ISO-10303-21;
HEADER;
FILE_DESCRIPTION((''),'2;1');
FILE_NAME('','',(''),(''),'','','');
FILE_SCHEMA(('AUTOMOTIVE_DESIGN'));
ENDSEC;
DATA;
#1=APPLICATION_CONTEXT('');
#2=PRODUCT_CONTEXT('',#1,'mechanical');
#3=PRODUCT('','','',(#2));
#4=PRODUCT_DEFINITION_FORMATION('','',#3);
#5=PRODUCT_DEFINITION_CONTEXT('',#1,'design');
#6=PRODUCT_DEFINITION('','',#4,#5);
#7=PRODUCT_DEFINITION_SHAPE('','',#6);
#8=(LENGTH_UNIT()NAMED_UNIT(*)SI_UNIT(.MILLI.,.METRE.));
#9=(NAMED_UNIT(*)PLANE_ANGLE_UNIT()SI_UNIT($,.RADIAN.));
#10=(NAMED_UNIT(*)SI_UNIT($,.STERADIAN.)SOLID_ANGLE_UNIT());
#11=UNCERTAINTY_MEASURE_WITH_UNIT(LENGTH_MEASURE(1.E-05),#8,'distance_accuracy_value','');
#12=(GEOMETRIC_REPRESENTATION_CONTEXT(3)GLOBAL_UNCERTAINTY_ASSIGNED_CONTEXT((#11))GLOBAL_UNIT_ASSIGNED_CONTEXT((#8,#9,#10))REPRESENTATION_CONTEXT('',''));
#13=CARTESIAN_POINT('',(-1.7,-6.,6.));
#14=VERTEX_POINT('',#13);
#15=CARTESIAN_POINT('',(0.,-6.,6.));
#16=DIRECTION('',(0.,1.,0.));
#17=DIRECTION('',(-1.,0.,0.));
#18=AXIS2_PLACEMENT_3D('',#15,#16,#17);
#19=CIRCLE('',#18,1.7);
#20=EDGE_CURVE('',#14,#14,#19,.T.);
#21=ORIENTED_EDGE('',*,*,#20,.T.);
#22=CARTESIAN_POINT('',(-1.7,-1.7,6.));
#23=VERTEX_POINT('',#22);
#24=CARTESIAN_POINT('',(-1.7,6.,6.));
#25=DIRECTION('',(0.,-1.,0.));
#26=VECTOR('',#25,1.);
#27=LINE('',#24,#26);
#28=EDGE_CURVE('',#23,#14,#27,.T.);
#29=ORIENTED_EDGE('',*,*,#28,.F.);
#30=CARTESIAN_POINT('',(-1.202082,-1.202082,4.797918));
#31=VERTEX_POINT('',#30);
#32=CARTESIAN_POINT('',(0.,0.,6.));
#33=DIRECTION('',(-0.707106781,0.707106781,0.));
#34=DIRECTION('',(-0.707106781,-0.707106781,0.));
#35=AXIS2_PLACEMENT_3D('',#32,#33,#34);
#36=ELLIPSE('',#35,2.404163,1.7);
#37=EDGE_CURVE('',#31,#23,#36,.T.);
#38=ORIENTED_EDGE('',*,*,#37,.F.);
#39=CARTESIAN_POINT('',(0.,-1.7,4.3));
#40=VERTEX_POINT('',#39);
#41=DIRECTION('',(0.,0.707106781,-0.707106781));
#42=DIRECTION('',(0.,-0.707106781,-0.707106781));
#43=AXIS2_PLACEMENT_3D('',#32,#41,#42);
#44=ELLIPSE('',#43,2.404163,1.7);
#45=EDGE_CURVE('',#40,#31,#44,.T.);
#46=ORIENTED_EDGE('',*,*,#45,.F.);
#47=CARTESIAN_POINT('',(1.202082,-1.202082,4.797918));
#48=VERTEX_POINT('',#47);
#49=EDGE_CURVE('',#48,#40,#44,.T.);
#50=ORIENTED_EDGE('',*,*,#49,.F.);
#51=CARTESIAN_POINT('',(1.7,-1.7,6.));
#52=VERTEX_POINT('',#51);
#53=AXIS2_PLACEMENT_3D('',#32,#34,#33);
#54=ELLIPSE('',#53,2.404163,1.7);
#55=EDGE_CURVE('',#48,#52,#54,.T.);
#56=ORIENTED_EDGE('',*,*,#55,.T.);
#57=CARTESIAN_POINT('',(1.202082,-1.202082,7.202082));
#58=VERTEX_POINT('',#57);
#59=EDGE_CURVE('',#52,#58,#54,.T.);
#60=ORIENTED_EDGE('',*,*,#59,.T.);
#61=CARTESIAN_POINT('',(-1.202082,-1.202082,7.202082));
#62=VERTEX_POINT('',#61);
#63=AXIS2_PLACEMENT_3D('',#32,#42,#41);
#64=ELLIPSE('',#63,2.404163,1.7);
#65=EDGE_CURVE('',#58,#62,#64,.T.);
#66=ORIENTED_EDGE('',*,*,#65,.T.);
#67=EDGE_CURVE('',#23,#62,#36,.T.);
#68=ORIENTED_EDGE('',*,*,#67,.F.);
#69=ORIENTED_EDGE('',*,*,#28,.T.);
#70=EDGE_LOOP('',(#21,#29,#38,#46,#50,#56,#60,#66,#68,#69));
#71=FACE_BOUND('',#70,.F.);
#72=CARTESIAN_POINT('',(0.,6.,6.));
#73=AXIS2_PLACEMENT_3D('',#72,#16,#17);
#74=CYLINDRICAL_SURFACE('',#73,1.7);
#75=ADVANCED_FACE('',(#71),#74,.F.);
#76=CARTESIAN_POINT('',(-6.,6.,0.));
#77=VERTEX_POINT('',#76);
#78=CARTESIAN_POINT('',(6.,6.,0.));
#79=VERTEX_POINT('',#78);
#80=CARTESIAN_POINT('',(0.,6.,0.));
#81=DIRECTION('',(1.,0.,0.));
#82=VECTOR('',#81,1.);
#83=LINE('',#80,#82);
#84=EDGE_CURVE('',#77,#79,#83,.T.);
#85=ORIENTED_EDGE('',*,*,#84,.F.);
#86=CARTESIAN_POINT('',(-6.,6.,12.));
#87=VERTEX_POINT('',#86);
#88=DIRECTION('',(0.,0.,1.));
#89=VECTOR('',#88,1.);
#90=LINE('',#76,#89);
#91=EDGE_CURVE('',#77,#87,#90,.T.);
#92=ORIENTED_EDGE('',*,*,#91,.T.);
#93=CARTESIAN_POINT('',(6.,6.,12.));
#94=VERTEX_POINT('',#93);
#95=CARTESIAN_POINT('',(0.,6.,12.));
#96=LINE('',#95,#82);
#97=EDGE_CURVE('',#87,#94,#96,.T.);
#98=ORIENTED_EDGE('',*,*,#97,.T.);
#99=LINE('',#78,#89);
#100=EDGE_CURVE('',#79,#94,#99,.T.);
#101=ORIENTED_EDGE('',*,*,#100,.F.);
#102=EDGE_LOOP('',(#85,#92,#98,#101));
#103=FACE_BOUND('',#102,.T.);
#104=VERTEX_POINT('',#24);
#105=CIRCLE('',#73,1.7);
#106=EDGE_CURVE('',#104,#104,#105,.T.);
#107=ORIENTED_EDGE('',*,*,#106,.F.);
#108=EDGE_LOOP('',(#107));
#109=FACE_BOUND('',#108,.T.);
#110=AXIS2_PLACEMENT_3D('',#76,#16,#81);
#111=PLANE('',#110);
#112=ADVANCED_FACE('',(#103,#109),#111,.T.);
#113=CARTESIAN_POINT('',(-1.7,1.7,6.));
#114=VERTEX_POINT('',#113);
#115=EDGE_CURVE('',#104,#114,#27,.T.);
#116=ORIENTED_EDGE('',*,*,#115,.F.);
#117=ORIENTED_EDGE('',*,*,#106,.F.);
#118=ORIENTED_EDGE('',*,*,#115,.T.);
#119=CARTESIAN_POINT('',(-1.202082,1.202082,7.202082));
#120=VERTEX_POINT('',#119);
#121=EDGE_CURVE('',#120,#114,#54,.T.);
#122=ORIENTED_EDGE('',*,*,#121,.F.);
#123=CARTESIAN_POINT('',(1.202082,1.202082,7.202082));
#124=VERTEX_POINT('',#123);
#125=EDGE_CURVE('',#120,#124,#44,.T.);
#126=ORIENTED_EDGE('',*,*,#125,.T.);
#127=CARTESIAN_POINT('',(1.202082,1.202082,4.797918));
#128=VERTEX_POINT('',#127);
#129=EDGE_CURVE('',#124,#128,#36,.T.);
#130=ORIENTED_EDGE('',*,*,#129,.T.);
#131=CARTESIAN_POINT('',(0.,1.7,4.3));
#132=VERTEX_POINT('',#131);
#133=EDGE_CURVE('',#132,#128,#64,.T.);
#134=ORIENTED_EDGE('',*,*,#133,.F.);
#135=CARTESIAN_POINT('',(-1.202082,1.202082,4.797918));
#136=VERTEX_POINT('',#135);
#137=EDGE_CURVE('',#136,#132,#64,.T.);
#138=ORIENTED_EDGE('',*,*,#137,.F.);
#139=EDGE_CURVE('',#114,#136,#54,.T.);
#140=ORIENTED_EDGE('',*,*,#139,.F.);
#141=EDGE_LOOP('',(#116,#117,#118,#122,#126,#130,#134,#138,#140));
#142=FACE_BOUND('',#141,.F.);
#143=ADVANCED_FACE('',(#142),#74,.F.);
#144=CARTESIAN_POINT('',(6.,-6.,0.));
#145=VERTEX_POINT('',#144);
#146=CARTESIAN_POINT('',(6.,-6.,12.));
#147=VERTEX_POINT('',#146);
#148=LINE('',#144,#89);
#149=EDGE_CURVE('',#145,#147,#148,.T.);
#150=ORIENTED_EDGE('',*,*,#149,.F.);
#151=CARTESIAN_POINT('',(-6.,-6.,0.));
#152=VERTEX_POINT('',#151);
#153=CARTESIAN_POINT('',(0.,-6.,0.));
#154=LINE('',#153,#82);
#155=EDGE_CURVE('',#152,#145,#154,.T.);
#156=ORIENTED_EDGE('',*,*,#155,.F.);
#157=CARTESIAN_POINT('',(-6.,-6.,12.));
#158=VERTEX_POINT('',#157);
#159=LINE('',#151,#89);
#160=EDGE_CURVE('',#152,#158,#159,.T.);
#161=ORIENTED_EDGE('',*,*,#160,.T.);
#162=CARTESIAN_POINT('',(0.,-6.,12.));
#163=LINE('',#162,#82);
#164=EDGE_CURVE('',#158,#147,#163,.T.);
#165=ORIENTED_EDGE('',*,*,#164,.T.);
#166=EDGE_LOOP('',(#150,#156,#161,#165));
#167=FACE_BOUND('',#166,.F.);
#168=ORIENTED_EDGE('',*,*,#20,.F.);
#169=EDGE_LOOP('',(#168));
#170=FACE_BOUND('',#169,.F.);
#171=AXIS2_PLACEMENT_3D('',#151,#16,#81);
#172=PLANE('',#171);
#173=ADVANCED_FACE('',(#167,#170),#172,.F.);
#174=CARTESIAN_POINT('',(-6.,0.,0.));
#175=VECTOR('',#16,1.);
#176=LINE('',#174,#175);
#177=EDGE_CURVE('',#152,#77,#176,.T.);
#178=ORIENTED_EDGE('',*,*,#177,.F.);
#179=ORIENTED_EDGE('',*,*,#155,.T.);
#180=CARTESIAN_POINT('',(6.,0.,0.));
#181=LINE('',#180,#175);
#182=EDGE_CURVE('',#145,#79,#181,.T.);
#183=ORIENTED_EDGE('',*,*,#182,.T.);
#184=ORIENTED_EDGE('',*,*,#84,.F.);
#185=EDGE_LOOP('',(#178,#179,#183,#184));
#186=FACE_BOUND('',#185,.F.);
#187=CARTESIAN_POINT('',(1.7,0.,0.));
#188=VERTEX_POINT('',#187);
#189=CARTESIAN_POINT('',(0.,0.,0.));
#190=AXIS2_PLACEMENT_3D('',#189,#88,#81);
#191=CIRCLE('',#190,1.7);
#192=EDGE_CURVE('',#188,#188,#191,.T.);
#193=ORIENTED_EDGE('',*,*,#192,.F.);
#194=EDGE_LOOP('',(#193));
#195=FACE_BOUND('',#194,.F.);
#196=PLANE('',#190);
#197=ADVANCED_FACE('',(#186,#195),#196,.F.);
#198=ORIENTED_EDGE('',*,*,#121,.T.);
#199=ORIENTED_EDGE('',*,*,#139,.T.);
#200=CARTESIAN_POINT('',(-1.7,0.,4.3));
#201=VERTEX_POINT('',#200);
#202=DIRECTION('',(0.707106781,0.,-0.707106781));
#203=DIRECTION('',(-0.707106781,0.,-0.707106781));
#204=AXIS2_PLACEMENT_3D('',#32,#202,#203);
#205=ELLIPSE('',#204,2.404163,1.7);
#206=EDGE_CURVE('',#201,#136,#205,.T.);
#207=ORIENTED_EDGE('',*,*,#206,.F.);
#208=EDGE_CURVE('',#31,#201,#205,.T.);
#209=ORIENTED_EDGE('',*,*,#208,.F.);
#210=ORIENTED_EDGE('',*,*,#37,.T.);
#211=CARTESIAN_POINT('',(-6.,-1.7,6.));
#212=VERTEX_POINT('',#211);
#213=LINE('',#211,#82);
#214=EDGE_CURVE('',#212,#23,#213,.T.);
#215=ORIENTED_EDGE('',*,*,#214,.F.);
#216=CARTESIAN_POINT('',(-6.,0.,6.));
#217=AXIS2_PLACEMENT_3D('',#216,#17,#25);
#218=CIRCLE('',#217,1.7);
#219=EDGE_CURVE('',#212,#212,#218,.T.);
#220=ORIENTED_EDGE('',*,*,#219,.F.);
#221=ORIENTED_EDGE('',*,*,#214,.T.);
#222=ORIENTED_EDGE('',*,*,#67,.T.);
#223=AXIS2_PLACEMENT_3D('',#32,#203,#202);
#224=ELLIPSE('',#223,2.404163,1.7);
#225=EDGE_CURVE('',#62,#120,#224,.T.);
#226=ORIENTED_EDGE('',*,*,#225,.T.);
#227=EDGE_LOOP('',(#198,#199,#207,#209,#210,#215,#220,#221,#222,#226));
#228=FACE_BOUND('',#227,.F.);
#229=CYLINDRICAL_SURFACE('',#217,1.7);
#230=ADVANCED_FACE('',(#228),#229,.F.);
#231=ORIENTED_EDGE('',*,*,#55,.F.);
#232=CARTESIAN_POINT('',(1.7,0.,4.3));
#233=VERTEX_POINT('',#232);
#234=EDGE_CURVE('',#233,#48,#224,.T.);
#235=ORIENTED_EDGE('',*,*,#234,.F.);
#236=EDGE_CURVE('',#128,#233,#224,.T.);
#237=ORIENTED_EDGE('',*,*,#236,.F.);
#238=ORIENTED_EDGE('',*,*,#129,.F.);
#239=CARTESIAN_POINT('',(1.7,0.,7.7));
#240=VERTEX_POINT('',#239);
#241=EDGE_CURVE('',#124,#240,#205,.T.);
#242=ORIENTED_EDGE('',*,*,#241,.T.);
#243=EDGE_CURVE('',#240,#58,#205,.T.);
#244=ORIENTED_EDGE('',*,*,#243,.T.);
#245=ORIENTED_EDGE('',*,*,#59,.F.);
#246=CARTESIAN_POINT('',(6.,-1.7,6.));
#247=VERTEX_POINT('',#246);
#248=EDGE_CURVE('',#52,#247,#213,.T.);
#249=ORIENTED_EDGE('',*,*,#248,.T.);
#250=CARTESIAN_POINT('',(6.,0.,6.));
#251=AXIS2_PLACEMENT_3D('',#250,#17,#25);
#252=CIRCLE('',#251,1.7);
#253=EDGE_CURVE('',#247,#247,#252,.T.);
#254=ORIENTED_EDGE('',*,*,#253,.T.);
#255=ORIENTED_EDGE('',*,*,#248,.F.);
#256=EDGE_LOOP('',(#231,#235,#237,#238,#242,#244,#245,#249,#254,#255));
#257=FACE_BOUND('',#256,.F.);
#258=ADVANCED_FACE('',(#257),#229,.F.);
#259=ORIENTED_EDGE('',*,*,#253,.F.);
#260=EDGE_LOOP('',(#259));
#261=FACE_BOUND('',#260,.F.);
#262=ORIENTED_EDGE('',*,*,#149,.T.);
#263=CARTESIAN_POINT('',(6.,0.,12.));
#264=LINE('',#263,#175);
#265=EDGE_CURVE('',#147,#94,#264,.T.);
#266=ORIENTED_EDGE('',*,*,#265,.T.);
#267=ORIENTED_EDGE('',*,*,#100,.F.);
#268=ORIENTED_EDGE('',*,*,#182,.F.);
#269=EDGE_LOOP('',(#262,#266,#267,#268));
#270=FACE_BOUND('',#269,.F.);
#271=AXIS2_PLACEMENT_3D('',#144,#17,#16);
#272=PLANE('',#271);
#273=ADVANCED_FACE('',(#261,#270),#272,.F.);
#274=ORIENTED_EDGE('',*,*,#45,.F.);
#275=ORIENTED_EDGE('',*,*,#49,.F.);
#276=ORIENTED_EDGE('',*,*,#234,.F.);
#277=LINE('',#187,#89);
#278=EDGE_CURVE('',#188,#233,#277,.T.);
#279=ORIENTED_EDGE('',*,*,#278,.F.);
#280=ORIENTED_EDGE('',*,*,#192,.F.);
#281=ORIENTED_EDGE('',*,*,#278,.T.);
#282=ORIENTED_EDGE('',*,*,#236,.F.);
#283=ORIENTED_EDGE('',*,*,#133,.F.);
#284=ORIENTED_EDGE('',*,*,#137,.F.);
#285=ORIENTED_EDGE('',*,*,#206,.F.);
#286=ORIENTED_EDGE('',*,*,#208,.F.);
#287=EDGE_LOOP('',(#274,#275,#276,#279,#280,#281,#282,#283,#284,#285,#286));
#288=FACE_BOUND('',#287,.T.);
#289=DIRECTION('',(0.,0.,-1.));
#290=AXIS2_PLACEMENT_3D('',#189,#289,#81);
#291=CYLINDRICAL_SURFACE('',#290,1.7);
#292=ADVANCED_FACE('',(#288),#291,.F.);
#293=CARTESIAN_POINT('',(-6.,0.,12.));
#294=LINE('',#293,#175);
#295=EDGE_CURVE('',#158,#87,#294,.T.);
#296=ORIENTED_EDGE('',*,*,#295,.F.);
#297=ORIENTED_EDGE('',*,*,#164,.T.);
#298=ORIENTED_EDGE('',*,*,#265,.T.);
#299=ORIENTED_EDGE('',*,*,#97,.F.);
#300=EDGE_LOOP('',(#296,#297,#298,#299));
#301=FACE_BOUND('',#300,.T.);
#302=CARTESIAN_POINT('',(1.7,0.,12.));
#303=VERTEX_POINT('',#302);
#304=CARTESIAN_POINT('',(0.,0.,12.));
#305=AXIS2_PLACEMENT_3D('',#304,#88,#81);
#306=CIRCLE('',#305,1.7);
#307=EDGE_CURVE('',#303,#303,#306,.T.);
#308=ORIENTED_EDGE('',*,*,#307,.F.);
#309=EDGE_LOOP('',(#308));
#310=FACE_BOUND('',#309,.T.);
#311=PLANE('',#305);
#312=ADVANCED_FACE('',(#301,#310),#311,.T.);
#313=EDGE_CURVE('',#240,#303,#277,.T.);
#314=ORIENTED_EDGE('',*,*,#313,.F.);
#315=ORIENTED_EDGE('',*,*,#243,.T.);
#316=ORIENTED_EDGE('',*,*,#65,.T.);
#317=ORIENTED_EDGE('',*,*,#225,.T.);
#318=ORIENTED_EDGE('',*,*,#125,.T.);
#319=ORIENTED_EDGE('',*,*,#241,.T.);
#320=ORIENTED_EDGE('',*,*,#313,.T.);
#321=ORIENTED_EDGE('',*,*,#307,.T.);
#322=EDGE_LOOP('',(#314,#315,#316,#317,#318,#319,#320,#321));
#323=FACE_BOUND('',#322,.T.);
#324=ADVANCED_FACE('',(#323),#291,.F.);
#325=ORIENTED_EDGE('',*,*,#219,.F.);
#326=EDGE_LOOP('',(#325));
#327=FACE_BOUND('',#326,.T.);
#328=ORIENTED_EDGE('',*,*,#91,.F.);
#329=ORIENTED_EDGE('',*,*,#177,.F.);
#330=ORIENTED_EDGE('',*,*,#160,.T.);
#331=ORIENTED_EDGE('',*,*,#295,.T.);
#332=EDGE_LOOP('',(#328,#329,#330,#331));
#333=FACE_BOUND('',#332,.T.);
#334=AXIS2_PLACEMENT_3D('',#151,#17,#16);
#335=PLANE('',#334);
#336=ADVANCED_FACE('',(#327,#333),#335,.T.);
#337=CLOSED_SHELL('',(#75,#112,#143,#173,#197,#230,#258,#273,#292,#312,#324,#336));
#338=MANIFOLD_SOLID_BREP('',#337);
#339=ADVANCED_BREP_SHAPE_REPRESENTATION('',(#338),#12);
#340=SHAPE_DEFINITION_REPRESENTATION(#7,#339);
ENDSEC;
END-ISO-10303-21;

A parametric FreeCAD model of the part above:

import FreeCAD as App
import Part
import Sketcher

V = App.Vector


def add_polygon(sketch, points):
    """Adds a closed chain of lines whose ends are joined by coincident constraints."""
    first, n = sketch.GeometryCount, len(points)
    for a, b in zip(points, points[1:] + points[:1]):
        sketch.addGeometry(Part.LineSegment(App.Vector(*a, 0), App.Vector(*b, 0)), False)
    for i in range(n):
        sketch.addConstraint(Sketcher.Constraint("Coincident", first + i, 2, first + (i + 1) % n, 1))

doc = App.newDocument("Part")
body = doc.addObject("PartDesign::Body", "Body")

# Sketch on XY plane
sketch1 = doc.addObject("Sketcher::SketchObject", "Sketch")
body.addObject(sketch1)
sketch1.AttachmentSupport = (doc.XY_Plane, [""])
sketch1.MapMode = "FlatFace"
add_polygon(sketch1, [(-6, 6), (-6, -6), (6, -6), (6, 6)])  # lines 0-3
sketch1.addGeometry(Part.Circle(V(0, 0, 0), V(0, 0, 1), 1.7), False)  # 4
sketch1.addConstraint(Sketcher.Constraint("Vertical", 0))
sketch1.addConstraint(Sketcher.Constraint("Horizontal", 1))
sketch1.addConstraint(Sketcher.Constraint("Vertical", 2))
sketch1.addConstraint(Sketcher.Constraint("Horizontal", 3))
sketch1.addConstraint(Sketcher.Constraint("Coincident", 4, 3, -1, 1))
sketch1.addConstraint(Sketcher.Constraint("Symmetric", 0, 2, 2, 2, -1, 1))
sketch1.addConstraint(Sketcher.Constraint("Equal", 3, 0))
sketch1.addConstraint(Sketcher.Constraint("Diameter", 4, 3.4))
sketch1.addConstraint(Sketcher.Constraint("DistanceX", 1, 1, 1, 2, 12.0))
pad1 = doc.addObject("PartDesign::Pad", "Pad")
body.addObject(pad1)
pad1.Profile = sketch1
pad1.Length = 12

# Sketch on YZ plane
sketch2 = doc.addObject("Sketcher::SketchObject", "Sketch001")
body.addObject(sketch2)
sketch2.AttachmentSupport = (doc.YZ_Plane, [""])
sketch2.MapMode = "FlatFace"
sketch2.AttachmentOffset = App.Placement(V(0, 0, -6), App.Rotation())
sketch2.addGeometry(Part.Circle(V(0, 6, 0), V(0, 0, 1), 1.7), False)
sketch2.addConstraint(Sketcher.Constraint("PointOnObject", 0, 3, -2))
sketch2.addConstraint(Sketcher.Constraint("Diameter", 0, 3.4))
sketch2.addConstraint(Sketcher.Constraint("DistanceY", -1, 1, 0, 3, 6.0))
pocket1 = doc.addObject("PartDesign::Pocket", "Pocket")
body.addObject(pocket1)
pocket1.Profile = sketch2
pocket1.Length = 12
pocket1.Reversed = True

# Sketch on XZ plane
sketch3 = doc.addObject("Sketcher::SketchObject", "Sketch002")
body.addObject(sketch3)
sketch3.AttachmentSupport = (doc.XZ_Plane, [""])
sketch3.MapMode = "FlatFace"
sketch3.AttachmentOffset = App.Placement(V(0, 0, -6), App.Rotation())
sketch3.addGeometry(Part.Circle(V(0, 6, 0), V(0, 0, 1), 1.7), False)
sketch3.addConstraint(Sketcher.Constraint("PointOnObject", 0, 3, -2))
sketch3.addConstraint(Sketcher.Constraint("Diameter", 0, 3.4))
sketch3.addConstraint(Sketcher.Constraint("DistanceY", -1, 1, 0, 3, 6.0))
pocket2 = doc.addObject("PartDesign::Pocket", "Pocket001")
body.addObject(pocket2)
pocket2.Profile = sketch3
pocket2.Length = 12
pocket2.Reversed = True

doc.recompute()
